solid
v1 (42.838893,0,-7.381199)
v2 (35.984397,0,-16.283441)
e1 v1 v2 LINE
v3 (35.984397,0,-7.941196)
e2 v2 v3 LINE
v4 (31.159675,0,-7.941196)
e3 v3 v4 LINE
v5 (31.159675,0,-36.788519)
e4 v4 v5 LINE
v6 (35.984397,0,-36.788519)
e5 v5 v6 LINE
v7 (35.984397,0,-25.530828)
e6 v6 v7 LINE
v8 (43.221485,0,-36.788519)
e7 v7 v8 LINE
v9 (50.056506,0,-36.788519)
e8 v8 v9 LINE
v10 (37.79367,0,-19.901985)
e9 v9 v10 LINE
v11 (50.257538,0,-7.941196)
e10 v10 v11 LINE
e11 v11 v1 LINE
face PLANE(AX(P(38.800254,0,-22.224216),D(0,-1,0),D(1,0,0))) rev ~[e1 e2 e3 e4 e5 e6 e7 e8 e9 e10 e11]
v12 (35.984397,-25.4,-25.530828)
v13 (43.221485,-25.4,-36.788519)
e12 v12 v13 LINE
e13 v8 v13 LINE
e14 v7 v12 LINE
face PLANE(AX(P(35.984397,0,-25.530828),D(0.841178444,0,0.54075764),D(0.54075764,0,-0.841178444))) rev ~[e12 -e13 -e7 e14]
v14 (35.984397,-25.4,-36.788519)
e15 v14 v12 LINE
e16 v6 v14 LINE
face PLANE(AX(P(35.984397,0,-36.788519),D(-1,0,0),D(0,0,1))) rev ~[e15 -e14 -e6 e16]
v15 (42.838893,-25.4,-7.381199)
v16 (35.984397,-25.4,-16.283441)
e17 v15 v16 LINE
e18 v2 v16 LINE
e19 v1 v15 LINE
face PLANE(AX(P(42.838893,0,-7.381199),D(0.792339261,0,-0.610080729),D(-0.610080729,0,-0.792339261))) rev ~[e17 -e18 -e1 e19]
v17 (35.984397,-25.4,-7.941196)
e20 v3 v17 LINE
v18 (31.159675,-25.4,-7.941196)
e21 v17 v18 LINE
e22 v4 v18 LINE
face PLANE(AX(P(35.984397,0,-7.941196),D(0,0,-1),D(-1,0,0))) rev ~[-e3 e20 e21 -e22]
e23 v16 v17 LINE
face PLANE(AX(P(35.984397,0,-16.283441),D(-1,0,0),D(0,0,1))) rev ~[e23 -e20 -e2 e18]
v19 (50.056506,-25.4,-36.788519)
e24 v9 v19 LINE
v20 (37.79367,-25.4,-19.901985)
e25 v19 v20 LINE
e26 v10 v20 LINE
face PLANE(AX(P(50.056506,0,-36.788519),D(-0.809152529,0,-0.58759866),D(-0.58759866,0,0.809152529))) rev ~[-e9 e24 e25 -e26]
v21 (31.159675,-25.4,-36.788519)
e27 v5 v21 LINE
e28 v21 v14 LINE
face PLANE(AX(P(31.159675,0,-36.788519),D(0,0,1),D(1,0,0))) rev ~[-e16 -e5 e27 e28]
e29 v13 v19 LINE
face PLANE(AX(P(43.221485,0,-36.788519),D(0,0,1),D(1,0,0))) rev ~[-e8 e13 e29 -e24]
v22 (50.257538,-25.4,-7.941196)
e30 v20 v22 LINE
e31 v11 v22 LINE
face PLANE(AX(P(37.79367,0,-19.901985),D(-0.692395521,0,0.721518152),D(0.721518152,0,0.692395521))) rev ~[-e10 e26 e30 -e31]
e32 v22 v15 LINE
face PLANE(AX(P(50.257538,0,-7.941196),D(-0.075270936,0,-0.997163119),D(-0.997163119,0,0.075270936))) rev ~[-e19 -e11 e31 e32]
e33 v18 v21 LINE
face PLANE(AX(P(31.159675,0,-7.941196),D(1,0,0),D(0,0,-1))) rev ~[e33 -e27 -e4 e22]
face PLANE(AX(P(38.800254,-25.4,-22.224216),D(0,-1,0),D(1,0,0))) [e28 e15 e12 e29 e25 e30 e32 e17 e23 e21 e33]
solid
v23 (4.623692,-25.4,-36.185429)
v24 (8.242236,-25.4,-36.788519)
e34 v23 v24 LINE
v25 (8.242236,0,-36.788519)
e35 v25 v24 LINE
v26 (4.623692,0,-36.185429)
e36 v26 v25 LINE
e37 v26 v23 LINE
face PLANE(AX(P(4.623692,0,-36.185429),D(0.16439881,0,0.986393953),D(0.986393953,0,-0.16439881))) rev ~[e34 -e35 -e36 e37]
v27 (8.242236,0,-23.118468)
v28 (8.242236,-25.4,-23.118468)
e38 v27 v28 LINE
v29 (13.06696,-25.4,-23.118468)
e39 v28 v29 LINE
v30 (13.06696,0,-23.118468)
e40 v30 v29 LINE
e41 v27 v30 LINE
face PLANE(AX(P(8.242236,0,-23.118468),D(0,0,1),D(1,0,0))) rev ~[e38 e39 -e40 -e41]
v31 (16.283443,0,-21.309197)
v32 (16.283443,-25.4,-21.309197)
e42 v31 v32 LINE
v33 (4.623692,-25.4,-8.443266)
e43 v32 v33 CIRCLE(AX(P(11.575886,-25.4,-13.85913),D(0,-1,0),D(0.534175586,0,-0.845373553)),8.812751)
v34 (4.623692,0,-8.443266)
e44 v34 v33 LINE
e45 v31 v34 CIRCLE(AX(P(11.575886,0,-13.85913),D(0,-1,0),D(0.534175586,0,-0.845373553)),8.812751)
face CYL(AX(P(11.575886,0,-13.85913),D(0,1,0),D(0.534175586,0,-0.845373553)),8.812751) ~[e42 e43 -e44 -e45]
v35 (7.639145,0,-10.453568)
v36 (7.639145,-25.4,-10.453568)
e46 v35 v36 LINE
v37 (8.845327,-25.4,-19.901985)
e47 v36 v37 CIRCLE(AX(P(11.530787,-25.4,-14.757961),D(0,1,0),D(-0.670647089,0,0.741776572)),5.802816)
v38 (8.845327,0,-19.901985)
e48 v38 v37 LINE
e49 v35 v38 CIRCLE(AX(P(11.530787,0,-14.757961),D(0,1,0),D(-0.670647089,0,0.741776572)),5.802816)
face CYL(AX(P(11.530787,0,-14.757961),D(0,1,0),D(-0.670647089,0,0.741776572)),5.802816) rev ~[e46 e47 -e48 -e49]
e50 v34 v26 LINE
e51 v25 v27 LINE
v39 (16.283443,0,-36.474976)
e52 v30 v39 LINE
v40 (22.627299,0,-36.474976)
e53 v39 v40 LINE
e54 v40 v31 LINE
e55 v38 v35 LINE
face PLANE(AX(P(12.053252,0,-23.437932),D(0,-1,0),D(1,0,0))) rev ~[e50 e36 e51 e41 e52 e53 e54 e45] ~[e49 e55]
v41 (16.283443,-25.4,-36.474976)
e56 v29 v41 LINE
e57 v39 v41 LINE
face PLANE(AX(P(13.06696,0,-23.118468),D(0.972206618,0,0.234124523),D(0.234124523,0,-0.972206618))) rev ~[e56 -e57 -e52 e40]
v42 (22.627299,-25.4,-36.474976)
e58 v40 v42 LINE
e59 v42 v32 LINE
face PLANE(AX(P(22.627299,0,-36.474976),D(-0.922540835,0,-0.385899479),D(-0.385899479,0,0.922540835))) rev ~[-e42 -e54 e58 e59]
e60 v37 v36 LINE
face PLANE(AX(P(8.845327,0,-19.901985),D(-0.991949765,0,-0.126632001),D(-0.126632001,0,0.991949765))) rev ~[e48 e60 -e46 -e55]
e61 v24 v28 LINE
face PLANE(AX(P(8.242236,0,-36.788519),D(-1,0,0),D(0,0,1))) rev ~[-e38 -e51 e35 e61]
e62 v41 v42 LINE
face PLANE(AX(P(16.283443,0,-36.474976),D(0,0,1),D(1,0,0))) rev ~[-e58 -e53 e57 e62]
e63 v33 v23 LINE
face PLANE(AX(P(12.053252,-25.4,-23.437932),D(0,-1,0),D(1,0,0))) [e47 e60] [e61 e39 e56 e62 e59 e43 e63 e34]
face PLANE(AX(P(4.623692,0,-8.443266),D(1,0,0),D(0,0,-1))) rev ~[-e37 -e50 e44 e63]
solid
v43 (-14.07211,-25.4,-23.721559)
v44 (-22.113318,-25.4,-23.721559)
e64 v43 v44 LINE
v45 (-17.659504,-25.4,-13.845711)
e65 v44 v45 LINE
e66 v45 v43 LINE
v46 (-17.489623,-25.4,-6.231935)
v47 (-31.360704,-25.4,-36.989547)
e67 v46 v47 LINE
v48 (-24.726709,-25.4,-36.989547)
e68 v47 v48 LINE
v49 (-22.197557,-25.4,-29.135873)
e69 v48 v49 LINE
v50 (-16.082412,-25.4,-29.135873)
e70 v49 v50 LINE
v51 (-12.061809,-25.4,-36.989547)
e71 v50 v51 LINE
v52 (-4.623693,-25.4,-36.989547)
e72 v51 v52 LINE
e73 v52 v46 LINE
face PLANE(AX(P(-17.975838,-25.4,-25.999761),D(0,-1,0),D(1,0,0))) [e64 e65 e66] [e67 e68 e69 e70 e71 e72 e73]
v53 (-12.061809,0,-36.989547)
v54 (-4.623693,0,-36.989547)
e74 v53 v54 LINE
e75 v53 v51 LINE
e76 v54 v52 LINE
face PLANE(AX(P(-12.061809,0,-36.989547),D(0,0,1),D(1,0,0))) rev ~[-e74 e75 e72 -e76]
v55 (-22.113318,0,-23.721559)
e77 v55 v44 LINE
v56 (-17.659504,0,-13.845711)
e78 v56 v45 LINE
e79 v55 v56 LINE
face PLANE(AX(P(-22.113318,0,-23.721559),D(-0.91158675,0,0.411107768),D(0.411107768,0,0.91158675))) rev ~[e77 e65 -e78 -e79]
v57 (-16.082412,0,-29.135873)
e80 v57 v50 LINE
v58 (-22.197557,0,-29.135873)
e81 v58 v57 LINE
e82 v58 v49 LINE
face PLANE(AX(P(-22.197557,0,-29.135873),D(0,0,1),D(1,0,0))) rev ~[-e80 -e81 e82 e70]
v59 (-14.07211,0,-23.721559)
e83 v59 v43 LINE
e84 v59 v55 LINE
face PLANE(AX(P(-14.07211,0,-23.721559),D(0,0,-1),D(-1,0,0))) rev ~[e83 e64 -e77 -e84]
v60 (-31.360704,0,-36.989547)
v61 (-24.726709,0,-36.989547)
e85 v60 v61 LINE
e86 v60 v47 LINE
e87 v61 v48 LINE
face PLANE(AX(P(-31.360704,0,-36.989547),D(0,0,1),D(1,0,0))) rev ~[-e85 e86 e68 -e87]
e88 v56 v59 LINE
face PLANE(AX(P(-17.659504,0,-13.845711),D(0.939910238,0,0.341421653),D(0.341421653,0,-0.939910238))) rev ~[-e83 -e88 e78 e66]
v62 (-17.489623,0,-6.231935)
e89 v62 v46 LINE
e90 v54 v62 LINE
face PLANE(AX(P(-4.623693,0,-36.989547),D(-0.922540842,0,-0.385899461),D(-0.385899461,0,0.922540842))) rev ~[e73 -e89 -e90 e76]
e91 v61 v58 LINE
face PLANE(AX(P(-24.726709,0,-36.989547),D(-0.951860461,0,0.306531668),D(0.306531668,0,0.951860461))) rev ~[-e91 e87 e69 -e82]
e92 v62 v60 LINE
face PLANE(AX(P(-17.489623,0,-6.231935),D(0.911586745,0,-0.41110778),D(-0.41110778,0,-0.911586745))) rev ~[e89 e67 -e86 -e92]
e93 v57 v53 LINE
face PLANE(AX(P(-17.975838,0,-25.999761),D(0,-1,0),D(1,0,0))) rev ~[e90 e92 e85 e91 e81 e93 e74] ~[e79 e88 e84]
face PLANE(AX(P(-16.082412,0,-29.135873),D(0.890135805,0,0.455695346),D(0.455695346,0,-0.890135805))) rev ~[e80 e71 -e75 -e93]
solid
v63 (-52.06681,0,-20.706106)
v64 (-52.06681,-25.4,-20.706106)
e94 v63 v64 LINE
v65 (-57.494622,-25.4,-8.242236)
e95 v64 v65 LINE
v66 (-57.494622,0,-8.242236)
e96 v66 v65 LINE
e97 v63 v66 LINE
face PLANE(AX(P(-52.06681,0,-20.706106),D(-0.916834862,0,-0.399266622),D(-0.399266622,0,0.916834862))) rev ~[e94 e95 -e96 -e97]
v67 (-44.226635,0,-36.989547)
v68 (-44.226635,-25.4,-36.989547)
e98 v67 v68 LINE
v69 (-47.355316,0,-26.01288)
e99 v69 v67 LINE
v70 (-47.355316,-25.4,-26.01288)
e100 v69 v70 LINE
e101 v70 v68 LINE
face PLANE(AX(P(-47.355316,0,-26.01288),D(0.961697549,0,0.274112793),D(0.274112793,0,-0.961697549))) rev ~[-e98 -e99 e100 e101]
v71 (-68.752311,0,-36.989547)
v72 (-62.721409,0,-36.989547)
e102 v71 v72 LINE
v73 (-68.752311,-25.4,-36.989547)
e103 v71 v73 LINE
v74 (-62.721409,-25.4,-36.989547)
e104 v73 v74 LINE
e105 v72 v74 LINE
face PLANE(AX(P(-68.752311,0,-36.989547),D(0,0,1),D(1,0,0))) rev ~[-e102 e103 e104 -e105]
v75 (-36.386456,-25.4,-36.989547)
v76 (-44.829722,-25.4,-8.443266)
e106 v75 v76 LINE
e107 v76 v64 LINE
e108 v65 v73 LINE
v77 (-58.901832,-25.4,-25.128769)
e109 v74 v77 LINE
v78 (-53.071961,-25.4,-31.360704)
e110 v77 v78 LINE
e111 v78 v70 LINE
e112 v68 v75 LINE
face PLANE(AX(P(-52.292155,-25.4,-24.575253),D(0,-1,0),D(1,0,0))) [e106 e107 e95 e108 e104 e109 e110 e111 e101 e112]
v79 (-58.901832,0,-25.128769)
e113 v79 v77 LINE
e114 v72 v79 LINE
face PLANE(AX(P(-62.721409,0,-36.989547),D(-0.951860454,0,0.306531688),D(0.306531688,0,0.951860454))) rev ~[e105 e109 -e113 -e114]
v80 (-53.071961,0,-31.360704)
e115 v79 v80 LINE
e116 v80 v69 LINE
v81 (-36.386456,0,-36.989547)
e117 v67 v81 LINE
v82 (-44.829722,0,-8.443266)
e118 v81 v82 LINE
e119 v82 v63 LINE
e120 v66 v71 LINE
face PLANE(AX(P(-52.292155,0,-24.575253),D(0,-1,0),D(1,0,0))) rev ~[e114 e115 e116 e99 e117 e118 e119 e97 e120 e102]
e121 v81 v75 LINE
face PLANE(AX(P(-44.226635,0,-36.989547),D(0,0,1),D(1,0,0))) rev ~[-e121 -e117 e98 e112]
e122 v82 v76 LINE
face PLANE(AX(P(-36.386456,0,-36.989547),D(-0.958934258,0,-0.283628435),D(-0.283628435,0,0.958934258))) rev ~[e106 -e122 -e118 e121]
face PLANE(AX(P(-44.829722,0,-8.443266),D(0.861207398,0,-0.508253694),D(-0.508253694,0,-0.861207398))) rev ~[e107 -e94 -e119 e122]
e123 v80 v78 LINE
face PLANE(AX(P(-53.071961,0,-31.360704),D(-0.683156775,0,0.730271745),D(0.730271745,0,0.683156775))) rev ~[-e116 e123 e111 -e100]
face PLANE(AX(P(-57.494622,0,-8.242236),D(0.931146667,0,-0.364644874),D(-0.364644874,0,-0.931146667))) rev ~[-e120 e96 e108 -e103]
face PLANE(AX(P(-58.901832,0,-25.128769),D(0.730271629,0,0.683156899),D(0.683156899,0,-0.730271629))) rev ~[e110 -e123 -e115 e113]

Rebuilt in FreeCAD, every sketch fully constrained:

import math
import FreeCAD as App
import Part
import Sketcher
from FreeCAD import Vector
Q = App.Units.Quantity

doc = App.newDocument("Part")
body = doc.addObject("PartDesign::Body", "Body")
body.AllowCompound = True

# Sketch on XZ plane
sketch1 = body.newObject("Sketcher::SketchObject", "Sketch")
sketch1.AttachmentSupport = (doc.getObject("XZ_Plane"), [""])
sketch1.MapMode = "FlatFace"
sketch1.addGeometry([
    Part.LineSegment(Vector(-57.494622, -8.242236, 0), Vector(-68.752311, -36.989547, 0)),  # 0
    Part.LineSegment(Vector(-68.752311, -36.989547, 0), Vector(-62.721409, -36.989547, 0)),  # 1
    Part.LineSegment(Vector(-62.721409, -36.989547, 0), Vector(-58.901832, -25.128769, 0)),  # 2
    Part.LineSegment(Vector(-58.901832, -25.128769, 0), Vector(-53.071961, -31.360704, 0)),  # 3
    Part.LineSegment(Vector(-53.071961, -31.360704, 0), Vector(-47.355316, -26.01288, 0)),  # 4
    Part.LineSegment(Vector(-47.355316, -26.01288, 0), Vector(-44.226635, -36.989547, 0)),  # 5
    Part.LineSegment(Vector(-44.226635, -36.989547, 0), Vector(-36.386456, -36.989547, 0)),  # 6
    Part.LineSegment(Vector(-36.386456, -36.989547, 0), Vector(-44.829722, -8.443266, 0)),  # 7
    Part.LineSegment(Vector(-44.829722, -8.443266, 0), Vector(-52.06681, -20.706106, 0)),  # 8
    Part.LineSegment(Vector(-52.06681, -20.706106, 0), Vector(-57.494622, -8.242236, 0)),  # 9
    Part.LineSegment(Vector(-17.489623, -6.231935, 0), Vector(-31.360704, -36.989547, 0)),  # 10
    Part.LineSegment(Vector(-31.360704, -36.989547, 0), Vector(-24.726709, -36.989547, 0)),  # 11
    Part.LineSegment(Vector(-24.726709, -36.989547, 0), Vector(-22.197557, -29.135873, 0)),  # 12
    Part.LineSegment(Vector(-22.197557, -29.135873, 0), Vector(-16.082412, -29.135873, 0)),  # 13
    Part.LineSegment(Vector(-16.082412, -29.135873, 0), Vector(-12.061809, -36.989547, 0)),  # 14
    Part.LineSegment(Vector(-12.061809, -36.989547, 0), Vector(-4.623693, -36.989547, 0)),  # 15
    Part.LineSegment(Vector(-4.623693, -36.989547, 0), Vector(-17.489623, -6.231935, 0)),  # 16
    Part.LineSegment(Vector(-17.659504, -13.845711, 0), Vector(-14.07211, -23.721559, 0)),  # 17
    Part.LineSegment(Vector(-14.07211, -23.721559, 0), Vector(-22.113318, -23.721559, 0)),  # 18
    Part.LineSegment(Vector(-22.113318, -23.721559, 0), Vector(-17.659504, -13.845711, 0)),  # 19
    Part.ArcOfCircle(Part.Circle(Vector(11.575886, -13.85913, 0), Vector(0, 0, 1), 8.812751), math.radians(-57.711981), math.radians(142.080873)),  # 20
    Part.LineSegment(Vector(4.623692, -8.443266, 0), Vector(4.623692, -36.185429, 0)),  # 21
    Part.LineSegment(Vector(4.623692, -36.185429, 0), Vector(8.242236, -36.788519, 0)),  # 22
    Part.LineSegment(Vector(8.242236, -36.788519, 0), Vector(8.242236, -23.118468, 0)),  # 23
    Part.LineSegment(Vector(8.242236, -23.118468, 0), Vector(13.06696, -23.118468, 0)),  # 24
    Part.LineSegment(Vector(13.06696, -23.118468, 0), Vector(16.283443, -36.474976, 0)),  # 25
    Part.LineSegment(Vector(16.283443, -36.474976, 0), Vector(22.627299, -36.474976, 0)),  # 26
    Part.LineSegment(Vector(22.627299, -36.474976, 0), Vector(16.283443, -21.309197, 0)),  # 27
    Part.LineSegment(Vector(8.845327, -19.901985, 0), Vector(7.639145, -10.453568, 0)),  # 28
    Part.ArcOfCircle(Part.Circle(Vector(11.530787, -14.757961, 0), Vector(0, 0, 1), 5.802816), math.radians(-117.567004), math.radians(132.117027)),  # 29
    Part.LineSegment(Vector(35.984397, -7.941196, 0), Vector(31.159675, -7.941196, 0)),  # 30
    Part.LineSegment(Vector(31.159675, -7.941196, 0), Vector(31.159675, -36.788519, 0)),  # 31
    Part.LineSegment(Vector(31.159675, -36.788519, 0), Vector(35.984397, -36.788519, 0)),  # 32
    Part.LineSegment(Vector(35.984397, -36.788519, 0), Vector(35.984397, -25.530828, 0)),  # 33
    Part.LineSegment(Vector(35.984397, -25.530828, 0), Vector(43.221485, -36.788519, 0)),  # 34
    Part.LineSegment(Vector(43.221485, -36.788519, 0), Vector(50.056506, -36.788519, 0)),  # 35
    Part.LineSegment(Vector(50.056506, -36.788519, 0), Vector(37.79367, -19.901985, 0)),  # 36
    Part.LineSegment(Vector(37.79367, -19.901985, 0), Vector(50.257538, -7.941196, 0)),  # 37
    Part.LineSegment(Vector(50.257538, -7.941196, 0), Vector(42.838893, -7.381199, 0)),  # 38
    Part.LineSegment(Vector(42.838893, -7.381199, 0), Vector(35.984397, -16.283441, 0)),  # 39
    Part.LineSegment(Vector(35.984397, -16.283441, 0), Vector(35.984397, -7.941196, 0)),  # 40
], False)
sketch1.addConstraint([
    Sketcher.Constraint("Coincident", 0, 2, 1, 1),
    Sketcher.Constraint("Coincident", 1, 2, 2, 1),
    Sketcher.Constraint("Coincident", 2, 2, 3, 1),
    Sketcher.Constraint("Coincident", 3, 2, 4, 1),
    Sketcher.Constraint("Coincident", 4, 2, 5, 1),
    Sketcher.Constraint("Coincident", 5, 2, 6, 1),
    Sketcher.Constraint("Coincident", 6, 2, 7, 1),
    Sketcher.Constraint("Coincident", 7, 2, 8, 1),
    Sketcher.Constraint("Coincident", 8, 2, 9, 1),
    Sketcher.Constraint("Coincident", 9, 2, 0, 1),
    Sketcher.Constraint("Coincident", 10, 2, 11, 1),
    Sketcher.Constraint("Coincident", 11, 2, 12, 1),
    Sketcher.Constraint("Coincident", 12, 2, 13, 1),
    Sketcher.Constraint("Coincident", 13, 2, 14, 1),
    Sketcher.Constraint("Coincident", 14, 2, 15, 1),
    Sketcher.Constraint("Coincident", 15, 2, 16, 1),
    Sketcher.Constraint("Coincident", 16, 2, 10, 1),
    Sketcher.Constraint("Coincident", 17, 2, 18, 1),
    Sketcher.Constraint("Coincident", 18, 2, 19, 1),
    Sketcher.Constraint("Coincident", 19, 2, 17, 1),
    Sketcher.Constraint("Coincident", 20, 2, 21, 1),
    Sketcher.Constraint("Coincident", 21, 2, 22, 1),
    Sketcher.Constraint("Coincident", 22, 2, 23, 1),
    Sketcher.Constraint("Coincident", 23, 2, 24, 1),
    Sketcher.Constraint("Coincident", 24, 2, 25, 1),
    Sketcher.Constraint("Coincident", 25, 2, 26, 1),
    Sketcher.Constraint("Coincident", 26, 2, 27, 1),
    Sketcher.Constraint("Coincident", 27, 2, 20, 1),
    Sketcher.Constraint("Coincident", 28, 1, 29, 1),
    Sketcher.Constraint("Coincident", 29, 2, 28, 2),
    Sketcher.Constraint("Coincident", 30, 2, 31, 1),
    Sketcher.Constraint("Coincident", 31, 2, 32, 1),
    Sketcher.Constraint("Coincident", 32, 2, 33, 1),
    Sketcher.Constraint("Coincident", 33, 2, 34, 1),
    Sketcher.Constraint("Coincident", 34, 2, 35, 1),
    Sketcher.Constraint("Coincident", 35, 2, 36, 1),
    Sketcher.Constraint("Coincident", 36, 2, 37, 1),
    Sketcher.Constraint("Coincident", 37, 2, 38, 1),
    Sketcher.Constraint("Coincident", 38, 2, 39, 1),
    Sketcher.Constraint("Coincident", 39, 2, 40, 1),
    Sketcher.Constraint("Coincident", 40, 2, 30, 1),
    Sketcher.Constraint("Horizontal", 1),
    Sketcher.Constraint("Horizontal", 6),
    Sketcher.Constraint("Horizontal", 11),
    Sketcher.Constraint("Horizontal", 13),
    Sketcher.Constraint("Horizontal", 15),
    Sketcher.Constraint("Horizontal", 18),
    Sketcher.Constraint("Vertical", 21),
    Sketcher.Constraint("Vertical", 23),
    Sketcher.Constraint("Horizontal", 24),
    Sketcher.Constraint("Horizontal", 26),
    Sketcher.Constraint("Horizontal", 30),
    Sketcher.Constraint("Vertical", 31),
    Sketcher.Constraint("Horizontal", 32),
    Sketcher.Constraint("Vertical", 33),
    Sketcher.Constraint("Horizontal", 35),
    Sketcher.Constraint("Vertical", 40),
    Sketcher.Constraint("Perpendicular", 3, 4),
    Sketcher.Constraint("Parallel", 2, 12),
    Sketcher.Constraint("Parallel", 10, 19),
    Sketcher.Constraint("Parallel", 16, 27),
    Sketcher.Constraint("Horizontal", 1, 2, 5, 2),
    Sketcher.Constraint("Horizontal", 6, 2, 10, 2),
    Sketcher.Constraint("Horizontal", 11, 2, 14, 2),
    Sketcher.Constraint("Horizontal", 7, 2, 20, 2),
    Sketcher.Constraint("Horizontal", 22, 2, 31, 2),
    Sketcher.Constraint("Horizontal", 32, 2, 34, 2),
    Sketcher.Constraint("Horizontal", 28, 1, 36, 2),
    Sketcher.Constraint("Horizontal", 30, 2, 37, 2),
    Sketcher.Constraint("Vertical", 25, 2, 27, 2),
    Sketcher.Constraint("Vertical", 33, 2, 39, 2),
    Sketcher.Constraint("Equal", 24, 30),
    Sketcher.Constraint("Radius", 20, Q("8.812751 mm")),
    Sketcher.Constraint("Radius", 29, Q("5.802816 mm")),
    Sketcher.Constraint("DistanceX", 6, 1, 6, 2, Q("7.840179 mm")),
    Sketcher.Constraint("DistanceX", 35, 1, 35, 2, Q("6.835021 mm")),
    Sketcher.Constraint("DistanceY", 23, 1, 23, 2, Q("13.670051 mm")),
    Sketcher.Constraint("DistanceY", 33, 1, 33, 2, Q("11.257691 mm")),
    Sketcher.Constraint("DistanceX", -1, 1, 26, 2, Q("22.627299 mm")),
    Sketcher.Constraint("DistanceY", 38, 2, -1, 1, Q("7.381199 mm")),
    Sketcher.Constraint("DistanceX", 29, 3, 20, 3, Q("0.0451 mm")),
    Sketcher.Constraint("DistanceX", 9, 2, 7, 2, Q("12.6649 mm")),
    Sketcher.Constraint("DistanceX", 6, 2, 12, 2, Q("14.188899 mm")),
    Sketcher.Constraint("DistanceX", 11, 2, 14, 2, Q("12.6649 mm")),
    Sketcher.Constraint("DistanceX", 7, 2, 16, 2, Q("27.340099 mm")),
    Sketcher.Constraint("DistanceX", 17, 2, 14, 2, Q("2.010301 mm")),
    Sketcher.Constraint("DistanceX", 17, 2, 20, 2, Q("18.695802 mm")),
    Sketcher.Constraint("DistanceY", 23, 2, 29, 2, Q("12.6649 mm")),
    Sketcher.Constraint("DistanceY", 27, 2, 30, 2, Q("13.368001 mm")),
    Sketcher.Constraint("Distance", 0, Q("30.873021 mm")),
    Sketcher.Constraint("Distance", 3, Q("8.533722 mm")),
    Sketcher.Constraint("Distance", 10, Q("33.740741 mm")),
    Sketcher.Constraint("Distance", 16, Q("33.340109 mm")),
    Sketcher.Constraint("Distance", 19, Q("10.83369 mm")),
    Sketcher.Constraint("Distance", 27, Q("16.439141 mm")),
    Sketcher.Constraint("Distance", 38, Q("7.439751 mm")),
    Sketcher.Constraint("Distance", 39, Q("11.235392 mm")),
    Sketcher.Constraint("DistanceX", 1, 1, 1, 2, Q("6.030902 mm")),
    Sketcher.Constraint("DistanceX", 11, 1, 11, 2, Q("6.633995 mm")),
    Sketcher.Constraint("DistanceX", 13, 1, 13, 2, Q("6.115145 mm")),
    Sketcher.Constraint("DistanceX", 15, 1, 15, 2, Q("7.438116 mm")),
    Sketcher.Constraint("DistanceX", 18, 2, 18, 1, Q("8.041208 mm")),
    Sketcher.Constraint("DistanceX", 24, 1, 24, 2, Q("4.824724 mm")),
    Sketcher.Constraint("DistanceY", 21, 2, 21, 1, Q("27.742163 mm")),
    Sketcher.Constraint("DistanceY", 31, 2, 31, 1, Q("28.847323 mm")),
    Sketcher.Constraint("DistanceY", 40, 1, 40, 2, Q("8.342245 mm")),
    Sketcher.Constraint("DistanceY", 20, 3, -1, 1, Q("13.85913 mm")),
    Sketcher.Constraint("DistanceY", 29, 3, -1, 1, Q("14.757961 mm")),
    Sketcher.Constraint("DistanceX", 0, 2, -1, 1, Q("68.752311 mm")),
    Sketcher.Constraint("DistanceY", 2, 2, -1, 1, Q("25.128769 mm")),
    Sketcher.Constraint("DistanceX", 3, 2, -1, 1, Q("53.071961 mm")),
    Sketcher.Constraint("DistanceY", 4, 2, -1, 1, Q("26.01288 mm")),
    Sketcher.Constraint("DistanceX", 7, 2, -1, 1, Q("44.829722 mm")),
    Sketcher.Constraint("DistanceX", 8, 2, -1, 1, Q("52.06681 mm")),
    Sketcher.Constraint("DistanceY", 17, 2, -1, 1, Q("23.721559 mm")),
    Sketcher.Constraint("DistanceY", 21, 2, -1, 1, Q("36.185429 mm")),
    Sketcher.Constraint("DistanceX", -1, 1, 24, 2, Q("13.06696 mm")),
    Sketcher.Constraint("DistanceX", -1, 1, 36, 2, Q("37.79367 mm")),
    Sketcher.Constraint("DistanceY", 1, 2, 2, 2, Q("11.860778 mm")),
    Sketcher.Constraint("DistanceX", 0, 2, 2, 2, Q("9.850479 mm")),
    Sketcher.Constraint("DistanceX", 4, 2, 5, 2, Q("3.128681 mm")),
    Sketcher.Constraint("DistanceY", 8, 2, 7, 2, Q("12.26284 mm")),
    Sketcher.Constraint("DistanceX", 23, 2, 28, 1, Q("0.603091 mm")),
    Sketcher.Constraint("DistanceX", 20, 3, 30, 2, Q("19.583789 mm")),
    Sketcher.Constraint("DistanceX", 31, 2, 34, 2, Q("12.06181 mm")),
])
pad1 = body.newObject("PartDesign::Pad", "Pad")
pad1.Profile = sketch1
pad1.Length = Q("1 in")

doc.recompute()
